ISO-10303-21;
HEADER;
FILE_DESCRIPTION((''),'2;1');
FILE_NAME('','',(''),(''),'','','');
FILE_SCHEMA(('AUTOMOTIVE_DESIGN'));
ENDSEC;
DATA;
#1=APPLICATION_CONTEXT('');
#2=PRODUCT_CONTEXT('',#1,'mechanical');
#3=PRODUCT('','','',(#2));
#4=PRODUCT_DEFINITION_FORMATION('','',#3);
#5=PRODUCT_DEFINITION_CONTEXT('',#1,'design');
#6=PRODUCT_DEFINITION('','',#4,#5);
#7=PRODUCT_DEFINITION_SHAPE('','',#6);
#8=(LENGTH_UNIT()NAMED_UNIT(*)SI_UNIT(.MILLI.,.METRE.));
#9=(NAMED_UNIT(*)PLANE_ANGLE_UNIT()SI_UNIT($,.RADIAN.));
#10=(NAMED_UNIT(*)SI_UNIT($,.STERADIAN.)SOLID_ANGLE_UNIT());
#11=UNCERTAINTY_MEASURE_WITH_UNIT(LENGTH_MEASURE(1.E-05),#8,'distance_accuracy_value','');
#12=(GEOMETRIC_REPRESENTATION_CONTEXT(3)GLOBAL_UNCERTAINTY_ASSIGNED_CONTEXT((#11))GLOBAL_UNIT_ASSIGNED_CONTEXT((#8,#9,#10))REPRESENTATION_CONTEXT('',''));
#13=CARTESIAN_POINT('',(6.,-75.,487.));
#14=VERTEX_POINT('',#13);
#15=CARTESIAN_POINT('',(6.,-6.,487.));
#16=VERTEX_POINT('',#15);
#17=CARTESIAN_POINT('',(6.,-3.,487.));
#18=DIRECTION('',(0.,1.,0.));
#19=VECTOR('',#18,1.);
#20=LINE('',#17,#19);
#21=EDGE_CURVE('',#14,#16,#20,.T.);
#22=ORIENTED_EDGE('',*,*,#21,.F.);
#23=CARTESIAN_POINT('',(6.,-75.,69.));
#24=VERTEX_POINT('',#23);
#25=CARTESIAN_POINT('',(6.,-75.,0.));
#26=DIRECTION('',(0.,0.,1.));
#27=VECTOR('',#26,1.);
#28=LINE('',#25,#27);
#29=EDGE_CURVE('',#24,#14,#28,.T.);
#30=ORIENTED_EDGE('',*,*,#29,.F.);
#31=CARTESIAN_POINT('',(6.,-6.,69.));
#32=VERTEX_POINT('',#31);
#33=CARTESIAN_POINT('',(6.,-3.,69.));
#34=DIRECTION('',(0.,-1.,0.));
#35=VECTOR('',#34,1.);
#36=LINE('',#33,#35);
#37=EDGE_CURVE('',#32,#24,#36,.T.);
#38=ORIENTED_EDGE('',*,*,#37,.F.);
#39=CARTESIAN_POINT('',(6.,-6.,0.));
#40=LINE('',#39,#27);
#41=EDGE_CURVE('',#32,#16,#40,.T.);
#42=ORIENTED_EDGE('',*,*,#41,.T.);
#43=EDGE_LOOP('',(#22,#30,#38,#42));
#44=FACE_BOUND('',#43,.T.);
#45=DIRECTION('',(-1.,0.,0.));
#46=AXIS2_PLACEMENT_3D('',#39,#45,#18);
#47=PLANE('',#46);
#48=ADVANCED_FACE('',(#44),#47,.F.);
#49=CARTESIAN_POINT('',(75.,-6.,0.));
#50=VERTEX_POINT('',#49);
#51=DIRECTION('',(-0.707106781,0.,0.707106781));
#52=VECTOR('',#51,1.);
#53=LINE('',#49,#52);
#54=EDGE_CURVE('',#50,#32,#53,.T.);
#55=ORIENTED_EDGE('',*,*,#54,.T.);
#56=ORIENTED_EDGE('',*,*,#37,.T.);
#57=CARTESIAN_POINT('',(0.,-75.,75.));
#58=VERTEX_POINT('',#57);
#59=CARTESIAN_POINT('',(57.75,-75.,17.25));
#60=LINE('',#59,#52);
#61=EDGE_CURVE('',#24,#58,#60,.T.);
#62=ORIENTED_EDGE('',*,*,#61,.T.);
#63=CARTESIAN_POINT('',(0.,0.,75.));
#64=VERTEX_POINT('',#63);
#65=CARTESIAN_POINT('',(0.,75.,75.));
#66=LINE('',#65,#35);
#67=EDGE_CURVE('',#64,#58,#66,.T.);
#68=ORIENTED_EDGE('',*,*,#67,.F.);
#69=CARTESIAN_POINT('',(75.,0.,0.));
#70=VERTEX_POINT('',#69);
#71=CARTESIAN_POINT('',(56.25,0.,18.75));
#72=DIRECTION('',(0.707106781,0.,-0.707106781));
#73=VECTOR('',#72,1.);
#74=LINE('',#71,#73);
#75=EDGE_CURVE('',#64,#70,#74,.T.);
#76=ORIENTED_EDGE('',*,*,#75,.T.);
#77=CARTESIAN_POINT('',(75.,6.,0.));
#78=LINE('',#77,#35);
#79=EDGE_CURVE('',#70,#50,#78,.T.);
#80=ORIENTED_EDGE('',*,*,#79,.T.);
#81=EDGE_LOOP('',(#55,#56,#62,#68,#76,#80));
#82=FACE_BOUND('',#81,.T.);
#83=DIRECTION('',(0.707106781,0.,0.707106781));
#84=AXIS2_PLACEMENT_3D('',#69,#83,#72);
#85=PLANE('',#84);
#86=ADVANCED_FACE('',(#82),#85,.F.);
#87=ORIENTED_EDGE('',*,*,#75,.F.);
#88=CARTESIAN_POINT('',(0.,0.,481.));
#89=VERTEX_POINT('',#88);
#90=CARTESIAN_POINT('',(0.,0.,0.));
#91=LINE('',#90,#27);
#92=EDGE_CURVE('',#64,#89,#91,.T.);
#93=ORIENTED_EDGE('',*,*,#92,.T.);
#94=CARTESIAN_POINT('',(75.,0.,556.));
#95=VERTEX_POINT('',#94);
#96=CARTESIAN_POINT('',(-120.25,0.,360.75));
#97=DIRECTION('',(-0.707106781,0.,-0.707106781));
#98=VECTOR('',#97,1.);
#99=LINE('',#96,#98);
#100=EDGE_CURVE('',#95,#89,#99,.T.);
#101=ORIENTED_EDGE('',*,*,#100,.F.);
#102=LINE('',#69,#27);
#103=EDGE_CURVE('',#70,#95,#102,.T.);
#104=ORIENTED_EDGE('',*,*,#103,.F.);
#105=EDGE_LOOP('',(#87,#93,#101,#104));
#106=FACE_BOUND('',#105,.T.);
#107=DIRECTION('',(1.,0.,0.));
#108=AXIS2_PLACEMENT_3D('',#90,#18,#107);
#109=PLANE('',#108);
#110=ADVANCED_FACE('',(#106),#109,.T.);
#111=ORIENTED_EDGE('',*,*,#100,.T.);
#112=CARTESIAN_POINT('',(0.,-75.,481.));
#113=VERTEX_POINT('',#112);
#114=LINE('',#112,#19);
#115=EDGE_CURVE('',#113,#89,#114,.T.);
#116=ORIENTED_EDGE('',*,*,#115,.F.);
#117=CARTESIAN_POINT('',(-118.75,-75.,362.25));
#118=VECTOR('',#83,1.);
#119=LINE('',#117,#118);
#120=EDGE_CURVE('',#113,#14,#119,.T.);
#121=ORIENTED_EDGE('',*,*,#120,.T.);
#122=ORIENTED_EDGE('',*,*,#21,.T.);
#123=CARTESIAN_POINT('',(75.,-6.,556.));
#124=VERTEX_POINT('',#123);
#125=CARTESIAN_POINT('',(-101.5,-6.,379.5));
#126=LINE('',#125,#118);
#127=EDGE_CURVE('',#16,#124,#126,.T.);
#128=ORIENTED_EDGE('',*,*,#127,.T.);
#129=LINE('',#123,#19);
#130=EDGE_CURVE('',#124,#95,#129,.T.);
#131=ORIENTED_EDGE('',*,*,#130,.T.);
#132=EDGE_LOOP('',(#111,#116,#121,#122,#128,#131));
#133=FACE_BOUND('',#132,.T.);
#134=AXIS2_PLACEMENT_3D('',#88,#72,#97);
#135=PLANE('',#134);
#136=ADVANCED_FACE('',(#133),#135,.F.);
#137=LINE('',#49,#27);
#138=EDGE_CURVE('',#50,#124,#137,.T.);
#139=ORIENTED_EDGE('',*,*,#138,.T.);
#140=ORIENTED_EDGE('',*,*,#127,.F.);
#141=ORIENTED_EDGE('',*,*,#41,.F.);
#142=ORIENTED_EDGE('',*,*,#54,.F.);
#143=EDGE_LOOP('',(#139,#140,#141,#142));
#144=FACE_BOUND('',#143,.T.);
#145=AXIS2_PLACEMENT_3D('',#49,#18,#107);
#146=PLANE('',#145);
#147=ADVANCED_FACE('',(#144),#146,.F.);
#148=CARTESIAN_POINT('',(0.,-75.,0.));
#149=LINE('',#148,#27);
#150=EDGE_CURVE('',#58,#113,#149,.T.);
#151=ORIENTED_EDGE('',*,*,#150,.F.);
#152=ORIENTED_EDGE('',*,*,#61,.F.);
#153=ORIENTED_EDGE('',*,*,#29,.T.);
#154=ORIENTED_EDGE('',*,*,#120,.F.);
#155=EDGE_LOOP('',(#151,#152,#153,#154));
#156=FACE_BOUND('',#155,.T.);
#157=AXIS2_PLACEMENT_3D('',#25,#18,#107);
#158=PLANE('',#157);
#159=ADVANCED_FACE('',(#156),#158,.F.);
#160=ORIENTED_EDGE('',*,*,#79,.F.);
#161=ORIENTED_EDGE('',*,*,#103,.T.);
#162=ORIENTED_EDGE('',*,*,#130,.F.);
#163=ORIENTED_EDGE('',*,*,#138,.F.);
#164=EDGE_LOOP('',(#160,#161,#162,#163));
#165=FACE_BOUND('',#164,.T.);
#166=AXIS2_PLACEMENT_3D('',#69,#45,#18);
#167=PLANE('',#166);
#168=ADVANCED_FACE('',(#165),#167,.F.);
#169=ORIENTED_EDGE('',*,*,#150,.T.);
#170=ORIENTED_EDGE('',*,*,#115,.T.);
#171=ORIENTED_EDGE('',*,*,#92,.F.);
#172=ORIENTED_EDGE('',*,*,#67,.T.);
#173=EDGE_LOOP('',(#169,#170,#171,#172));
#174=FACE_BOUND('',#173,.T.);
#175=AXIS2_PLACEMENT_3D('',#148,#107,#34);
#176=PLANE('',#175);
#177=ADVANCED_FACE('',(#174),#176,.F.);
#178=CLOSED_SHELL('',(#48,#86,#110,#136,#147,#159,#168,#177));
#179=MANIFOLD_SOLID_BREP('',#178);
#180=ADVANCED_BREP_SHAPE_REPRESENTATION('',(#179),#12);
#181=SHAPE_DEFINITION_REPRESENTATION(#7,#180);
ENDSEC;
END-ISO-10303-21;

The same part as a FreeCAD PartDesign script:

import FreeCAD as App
import Part
import Sketcher

V = App.Vector
Q = App.Units.Quantity


def add_polygon(sketch, points):
    """Adds a closed chain of lines whose ends are joined by coincident constraints."""
    first, n = sketch.GeometryCount, len(points)
    for a, b in zip(points, points[1:] + points[:1]):
        sketch.addGeometry(Part.LineSegment(App.Vector(*a, 0), App.Vector(*b, 0)), False)
    for i in range(n):
        sketch.addConstraint(Sketcher.Constraint("Coincident", first + i, 2, first + (i + 1) % n, 1))

doc = App.newDocument("Part")
body = doc.addObject("PartDesign::Body", "Body")

sketch1 = doc.addObject("Sketcher::SketchObject", "Sketch")
body.addObject(sketch1)
sketch1.AttachmentSupport = (doc.XY_Plane, [""])
sketch1.MapMode = "FlatFace"
add_polygon(sketch1, [(0, 75), (0, 0), (75, 0), (75, 6), (6, 6), (6, 75)])
sketch1.addConstraint(Sketcher.Constraint("Vertical", 0))
sketch1.addConstraint(Sketcher.Constraint("Horizontal", 1))
sketch1.addConstraint(Sketcher.Constraint("Vertical", 2))
sketch1.addConstraint(Sketcher.Constraint("Horizontal", 3))
sketch1.addConstraint(Sketcher.Constraint("Vertical", 4))
sketch1.addConstraint(Sketcher.Constraint("Horizontal", 5))
sketch1.addConstraint(Sketcher.Constraint("Coincident", 0, 2, -1, 1))
sketch1.addConstraint(Sketcher.Constraint("Equal", 1, 0))
sketch1.addConstraint(Sketcher.Constraint("Equal", 5, 2))
sketch1.addConstraint(Sketcher.Constraint("DistanceX", 1, 1, 1, 2, Q("75 mm")))
sketch1.addConstraint(Sketcher.Constraint("DistanceX", 3, 2, 3, 1, Q("69 mm")))
pad1 = doc.addObject("PartDesign::Pad", "Pad")
body.addObject(pad1)
pad1.Profile = sketch1
pad1.Length = 556

sketch2 = doc.addObject("Sketcher::SketchObject", "Sketch001")
body.addObject(sketch2)
sketch2.AttachmentSupport = (doc.XZ_Plane, [""])
sketch2.MapMode = "FlatFace"
add_polygon(sketch2, [(0, 75), (0, 0), (75, 0)])
sketch2.addConstraint(Sketcher.Constraint("Vertical", 0))
sketch2.addConstraint(Sketcher.Constraint("Horizontal", 1))
sketch2.addConstraint(Sketcher.Constraint("Coincident", 0, 2, -1, 1))
sketch2.addConstraint(Sketcher.Constraint("Equal", 1, 0))
sketch2.addConstraint(Sketcher.Constraint("DistanceX", 1, 1, 1, 2, Q("75 mm")))
pocket1 = doc.addObject("PartDesign::Pocket", "Pocket")
body.addObject(pocket1)
pocket1.Profile = sketch2
pocket1.Type = "ThroughAll"

sketch3 = doc.addObject("Sketcher::SketchObject", "Sketch002")
body.addObject(sketch3)
sketch3.AttachmentSupport = (doc.XZ_Plane, [""])
sketch3.MapMode = "FlatFace"
add_polygon(sketch3, [(0, 481), (75, 556), (0, 556)])
sketch3.addConstraint(Sketcher.Constraint("Horizontal", 1))
sketch3.addConstraint(Sketcher.Constraint("Vertical", 2))
sketch3.addConstraint(Sketcher.Constraint("PointOnObject", 1, 2, -2))
sketch3.addConstraint(Sketcher.Constraint("Equal", 1, 2))
sketch3.addConstraint(Sketcher.Constraint("DistanceX", 1, 2, 1, 1, Q("75 mm")))
sketch3.addConstraint(Sketcher.Constraint("DistanceY", -1, 1, 0, 2, Q("556 mm")))
pocket2 = doc.addObject("PartDesign::Pocket", "Pocket001")
body.addObject(pocket2)
pocket2.Profile = sketch3
pocket2.Type = "ThroughAll"
body2 = doc.addObject("PartDesign::Body", "Body001")
doc.recompute()

body2.BaseFeature = body
doc.recompute()

mirroring = doc.addObject("Part::Mirroring", "Mirroring")
mirroring.Source = body
mirroring.Base = V(0, 0, 0)
mirroring.Normal = V(0, -1, 0)
body3 = doc.addObject("PartDesign::Body", "Body002")
body3.BaseFeature = mirroring
boolean = doc.addObject("PartDesign::Boolean", "Boolean")
body2.addObject(boolean)
boolean.Type = "Fuse"
boolean.addObjects([body3])
doc.recompute()

sketch4 = doc.addObject("Sketcher::SketchObject", "Sketch003")
body2.addObject(sketch4)
sketch4.AttachmentSupport = (doc.getObject("XY_Plane001"), [""])
sketch4.MapMode = "FlatFace"
add_polygon(sketch4, [(0, 75), (0, 0), (75, 0), (75, 75)])
sketch4.addConstraint(Sketcher.Constraint("Vertical", 0))
sketch4.addConstraint(Sketcher.Constraint("Horizontal", 1))
sketch4.addConstraint(Sketcher.Constraint("Vertical", 2))
sketch4.addConstraint(Sketcher.Constraint("Horizontal", 3))
sketch4.addConstraint(Sketcher.Constraint("Coincident", 0, 2, -1, 1))
sketch4.addConstraint(Sketcher.Constraint("Equal", 3, 0))
sketch4.addConstraint(Sketcher.Constraint("DistanceX", 1, 1, 1, 2, Q("75 mm")))
pocket3 = doc.addObject("PartDesign::Pocket", "Pocket002")
body2.addObject(pocket3)
pocket3.Profile = sketch4
pocket3.Type = "ThroughAll"
pocket3.Reversed = True
mirroring.Visibility = False

doc.recompute()
